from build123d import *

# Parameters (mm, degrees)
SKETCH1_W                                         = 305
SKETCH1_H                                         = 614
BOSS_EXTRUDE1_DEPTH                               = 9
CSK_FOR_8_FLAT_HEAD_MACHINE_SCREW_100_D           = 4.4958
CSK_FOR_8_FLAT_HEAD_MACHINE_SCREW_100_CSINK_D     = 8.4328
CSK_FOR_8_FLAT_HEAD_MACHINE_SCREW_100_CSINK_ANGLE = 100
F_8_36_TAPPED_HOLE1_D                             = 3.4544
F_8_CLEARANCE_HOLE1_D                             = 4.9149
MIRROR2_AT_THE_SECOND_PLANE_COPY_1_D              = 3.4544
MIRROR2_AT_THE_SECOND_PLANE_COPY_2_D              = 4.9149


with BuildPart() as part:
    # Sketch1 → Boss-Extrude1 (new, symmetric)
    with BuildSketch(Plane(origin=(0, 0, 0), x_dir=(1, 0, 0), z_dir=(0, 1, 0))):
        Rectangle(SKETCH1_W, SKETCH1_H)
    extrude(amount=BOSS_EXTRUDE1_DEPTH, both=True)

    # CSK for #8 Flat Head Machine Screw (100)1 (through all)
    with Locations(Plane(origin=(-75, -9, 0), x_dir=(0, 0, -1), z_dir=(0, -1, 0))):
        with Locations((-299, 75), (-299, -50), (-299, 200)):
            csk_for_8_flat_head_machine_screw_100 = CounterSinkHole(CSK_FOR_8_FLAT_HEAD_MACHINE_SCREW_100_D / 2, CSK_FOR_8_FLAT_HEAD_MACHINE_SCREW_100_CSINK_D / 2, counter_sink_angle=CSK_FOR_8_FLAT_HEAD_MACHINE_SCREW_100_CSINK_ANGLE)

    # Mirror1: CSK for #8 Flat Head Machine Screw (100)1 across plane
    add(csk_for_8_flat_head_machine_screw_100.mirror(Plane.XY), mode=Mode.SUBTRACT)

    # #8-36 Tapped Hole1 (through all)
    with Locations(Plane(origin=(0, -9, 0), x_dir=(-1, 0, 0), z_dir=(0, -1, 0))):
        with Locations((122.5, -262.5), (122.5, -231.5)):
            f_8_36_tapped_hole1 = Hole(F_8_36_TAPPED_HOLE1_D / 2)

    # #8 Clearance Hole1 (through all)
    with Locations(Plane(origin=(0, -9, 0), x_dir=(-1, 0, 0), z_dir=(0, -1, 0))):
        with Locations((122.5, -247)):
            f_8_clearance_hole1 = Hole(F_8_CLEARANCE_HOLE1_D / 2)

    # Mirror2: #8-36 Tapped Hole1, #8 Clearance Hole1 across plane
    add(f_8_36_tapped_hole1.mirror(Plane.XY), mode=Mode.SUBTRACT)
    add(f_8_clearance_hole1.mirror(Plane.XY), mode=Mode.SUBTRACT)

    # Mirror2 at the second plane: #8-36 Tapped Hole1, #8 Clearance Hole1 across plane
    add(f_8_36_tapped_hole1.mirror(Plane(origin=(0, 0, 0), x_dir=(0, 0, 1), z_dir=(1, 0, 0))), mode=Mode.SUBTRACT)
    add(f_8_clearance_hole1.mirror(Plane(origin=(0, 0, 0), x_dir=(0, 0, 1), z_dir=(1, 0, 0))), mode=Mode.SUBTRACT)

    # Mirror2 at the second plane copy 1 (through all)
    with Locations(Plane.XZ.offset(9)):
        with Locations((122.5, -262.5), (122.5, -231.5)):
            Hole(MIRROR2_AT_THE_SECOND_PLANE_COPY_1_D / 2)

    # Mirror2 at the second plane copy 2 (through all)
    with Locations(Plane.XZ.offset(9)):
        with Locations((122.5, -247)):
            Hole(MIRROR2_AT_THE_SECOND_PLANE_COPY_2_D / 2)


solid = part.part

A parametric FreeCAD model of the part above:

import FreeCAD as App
import Part
import Sketcher
Q = App.Units.Quantity

doc = App.newDocument("Part")
body = doc.addObject("PartDesign::Body", "Body")

sketch1 = doc.addObject("Sketcher::SketchObject", "Sketch")
body.addObject(sketch1)
sketch1.AttachmentSupport = (doc.XZ_Plane, [""])
sketch1.MapMode = "FlatFace"
sketch1.addGeometry([
    Part.LineSegment(App.Vector(-152, -307, 0), App.Vector(-152, 307, 0)),
    Part.LineSegment(App.Vector(-152, 307, 0), App.Vector(152, 307, 0)),
    Part.LineSegment(App.Vector(152, 307, 0), App.Vector(152, -307, 0)),
    Part.LineSegment(App.Vector(152, -307, 0), App.Vector(-152, -307, 0)),
], False)
sketch1.addConstraint([
    Sketcher.Constraint("Coincident", 0, 2, 1, 1),
    Sketcher.Constraint("Coincident", 1, 2, 2, 1),
    Sketcher.Constraint("Coincident", 2, 2, 3, 1),
    Sketcher.Constraint("Coincident", 3, 2, 0, 1),
    Sketcher.Constraint("Vertical", 0),
    Sketcher.Constraint("Horizontal", 1),
    Sketcher.Constraint("Vertical", 2),
    Sketcher.Constraint("Horizontal", 3),
    Sketcher.Constraint("Symmetric", 0, 2, 2, 2, -1, 1),
    Sketcher.Constraint("DistanceX", 1, 1, 1, 2, Q("305 mm")),
    Sketcher.Constraint("DistanceY", 0, 1, 0, 2, Q("614 mm")),
])
pad1 = doc.addObject("PartDesign::Pad", "Pad")
body.addObject(pad1)
pad1.Profile = sketch1
pad1.Length = 18
pad1.Midplane = True

sketch2 = doc.addObject("Sketcher::SketchObject", "Sketch001")
body.addObject(sketch2)
sketch2.AttachmentSupport = (doc.XZ_Plane, [""])
sketch2.MapMode = "FlatFace"
sketch2.AttachmentOffset = App.Placement(App.Vector(0, 0, 9), App.Rotation())
sketch2.addGeometry([
    Part.Circle(App.Vector(0, 299, 0), App.Vector(0, 0, 1), 2.2),
    Part.Circle(App.Vector(-125, 299, 0), App.Vector(0, 0, 1), 2.2),
    Part.Circle(App.Vector(125, 299, 0), App.Vector(0, 0, 1), 2.2),
], False)
sketch2.addConstraint([
    Sketcher.Constraint("Equal", 0, 1),
    Sketcher.Constraint("Equal", 1, 2),
    Sketcher.Constraint("Symmetric", 1, 3, 2, 3, -2),
    Sketcher.Constraint("PointOnObject", 0, 3, -2),
    Sketcher.Constraint("Horizontal", 0, 3, 1, 3),
    Sketcher.Constraint("DistanceY", -1, 1, 0, 3, Q("299 mm")),
    Sketcher.Constraint("DistanceX", 1, 3, -1, 1, Q("125 mm")),
    Sketcher.Constraint("Diameter", 0, Q("4.4958 mm")),
])
doc.recompute()
hole = doc.addObject("PartDesign::Hole", "Hole")
body.addObject(hole)
hole.Profile = sketch2
hole.ThreadType = "None"
hole.Diameter = 4.4958
hole.DepthType = "ThroughAll"
hole.HoleCutType = "Countersink"
hole.HoleCutDiameter = 8.4328
hole.HoleCutCountersinkAngle = 100
doc.recompute()

mirrored = doc.addObject("PartDesign::Mirrored", "Mirrored")
body.addObject(mirrored)
mirrored.Originals = [hole]
mirrored.MirrorPlane = (doc.XY_Plane, [""])
body.Tip = mirrored

sketch3 = doc.addObject("Sketcher::SketchObject", "Sketch002")
body.addObject(sketch3)
sketch3.AttachmentSupport = (doc.XZ_Plane, [""])
sketch3.MapMode = "FlatFace"
sketch3.AttachmentOffset = App.Placement(App.Vector(0, 0, 9), App.Rotation())
sketch3.addGeometry([
    Part.Circle(App.Vector(-122.5, 262.5, 0), App.Vector(0, 0, 1), 1.7),
    Part.Circle(App.Vector(-122.5, 231.5, 0), App.Vector(0, 0, 1), 1.7),
], False)
sketch3.addConstraint([
    Sketcher.Constraint("Equal", 0, 1),
    Sketcher.Constraint("Vertical", 0, 3, 1, 3),
    Sketcher.Constraint("DistanceY", 1, 3, 0, 3, Q("31 mm")),
    Sketcher.Constraint("Diameter", 0, Q("3.4544 mm")),
    Sketcher.Constraint("DistanceX", 0, 3, -1, 1, Q("122.5 mm")),
    Sketcher.Constraint("DistanceY", -1, 1, 0, 3, Q("262.5 mm")),
])
doc.recompute()
hole2 = doc.addObject("PartDesign::Hole", "Hole001")
body.addObject(hole2)
hole2.Profile = sketch3
hole2.ThreadType = "None"
hole2.Diameter = 3.4544
hole2.DepthType = "ThroughAll"

sketch4 = doc.addObject("Sketcher::SketchObject", "Sketch003")
body.addObject(sketch4)
sketch4.AttachmentSupport = (doc.XZ_Plane, [""])
sketch4.MapMode = "FlatFace"
sketch4.AttachmentOffset = App.Placement(App.Vector(0, 0, 9), App.Rotation())
sketch4.addGeometry(Part.Circle(App.Vector(-122.5, 247, 0), App.Vector(0, 0, 1), 2.5), False)
sketch4.addConstraint([
    Sketcher.Constraint("DistanceY", -1, 1, 0, 3, Q("247 mm")),
    Sketcher.Constraint("Diameter", 0, Q("4.9149 mm")),
    Sketcher.Constraint("DistanceX", 0, 3, -1, 1, Q("122.5 mm")),
])
doc.recompute()
hole3 = doc.addObject("PartDesign::Hole", "Hole002")
body.addObject(hole3)
hole3.Profile = sketch4
hole3.ThreadType = "None"
hole3.Diameter = 4.9149
hole3.DepthType = "ThroughAll"
doc.recompute()

mirrored2 = doc.addObject("PartDesign::Mirrored", "Mirrored001")
body.addObject(mirrored2)
mirrored2.Originals = [hole2, hole3]
mirrored2.MirrorPlane = (doc.XY_Plane, [""])
body.Tip = mirrored2
doc.recompute()

mirrored3 = doc.addObject("PartDesign::Mirrored", "Mirrored002")
body.addObject(mirrored3)
mirrored3.Originals = [hole2, hole3]
mirrored3.MirrorPlane = (doc.YZ_Plane, [""])
body.Tip = mirrored3

sketch5 = doc.addObject("Sketcher::SketchObject", "Sketch004")
body.addObject(sketch5)
sketch5.AttachmentSupport = (doc.XZ_Plane, [""])
sketch5.MapMode = "FlatFace"
sketch5.AttachmentOffset = App.Placement(App.Vector(0, 0, 9), App.Rotation())
sketch5.addGeometry([
    Part.Circle(App.Vector(122.5, -262.5, 0), App.Vector(0, 0, 1), 1.7),
    Part.Circle(App.Vector(122.5, -231.5, 0), App.Vector(0, 0, 1), 1.7),
], False)
sketch5.addConstraint([
    Sketcher.Constraint("Equal", 0, 1),
    Sketcher.Constraint("Vertical", 0, 3, 1, 3),
    Sketcher.Constraint("DistanceY", 0, 3, 1, 3, Q("31 mm")),
    Sketcher.Constraint("Diameter", 0, Q("3.4544 mm")),
    Sketcher.Constraint("DistanceX", -1, 1, 0, 3, Q("122.5 mm")),
    Sketcher.Constraint("DistanceY", 0, 3, -1, 1, Q("262.5 mm")),
])
doc.recompute()
hole4 = doc.addObject("PartDesign::Hole", "Hole003")
body.addObject(hole4)
hole4.Profile = sketch5
hole4.ThreadType = "None"
hole4.Diameter = 3.4544
hole4.DepthType = "ThroughAll"

sketch6 = doc.addObject("Sketcher::SketchObject", "Sketch005")
body.addObject(sketch6)
sketch6.AttachmentSupport = (doc.XZ_Plane, [""])
sketch6.MapMode = "FlatFace"
sketch6.AttachmentOffset = App.Placement(App.Vector(0, 0, 9), App.Rotation())
sketch6.addGeometry(Part.Circle(App.Vector(122.5, -247, 0), App.Vector(0, 0, 1), 2.5), False)
sketch6.addConstraint([
    Sketcher.Constraint("DistanceY", 0, 3, -1, 1, Q("247 mm")),
    Sketcher.Constraint("Diameter", 0, Q("4.9149 mm")),
    Sketcher.Constraint("DistanceX", -1, 1, 0, 3, Q("122.5 mm")),
])
doc.recompute()
hole5 = doc.addObject("PartDesign::Hole", "Hole004")
body.addObject(hole5)
hole5.Profile = sketch6
hole5.ThreadType = "None"
hole5.Diameter = 4.9149
hole5.DepthType = "ThroughAll"

doc.recompute()
